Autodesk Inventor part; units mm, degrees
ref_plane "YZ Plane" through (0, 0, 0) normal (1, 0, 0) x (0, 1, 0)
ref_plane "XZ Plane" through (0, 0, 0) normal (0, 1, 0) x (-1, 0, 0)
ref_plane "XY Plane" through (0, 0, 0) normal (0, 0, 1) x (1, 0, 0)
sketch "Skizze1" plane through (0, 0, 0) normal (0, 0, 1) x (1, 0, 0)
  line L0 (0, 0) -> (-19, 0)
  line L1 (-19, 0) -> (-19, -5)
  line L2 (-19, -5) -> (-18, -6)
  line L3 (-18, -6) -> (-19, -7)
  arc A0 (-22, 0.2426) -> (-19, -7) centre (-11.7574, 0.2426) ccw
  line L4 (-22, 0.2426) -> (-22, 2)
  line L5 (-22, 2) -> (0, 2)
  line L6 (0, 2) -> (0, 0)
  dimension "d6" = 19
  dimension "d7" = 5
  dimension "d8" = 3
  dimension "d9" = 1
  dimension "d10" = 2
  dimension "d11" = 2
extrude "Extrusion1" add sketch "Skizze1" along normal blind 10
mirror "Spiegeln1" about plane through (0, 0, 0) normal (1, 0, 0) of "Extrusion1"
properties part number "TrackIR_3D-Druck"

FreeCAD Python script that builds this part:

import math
import FreeCAD as App
import Part
import Sketcher
from FreeCAD import Vector

doc = App.newDocument("Part")
params = doc.addObject("Spreadsheet::Sheet", "Params")
for row, (alias, value) in enumerate([
    ("sketch1_width", "19 mm"),
    ("sketch1_height", "2 mm"),
    ("sketch1_height2", "5 mm"),
    ("pad1_length", "10 mm"),
], start=1):
    params.set(f"A{row}", alias)
    params.set(f"B{row}", "=" + value)
    params.setAlias(f"B{row}", alias)

body = doc.addObject("PartDesign::Body", "Body")

# Sketch on XY plane
sketch1 = body.newObject("Sketcher::SketchObject", "Sketch")
sketch1.AttachmentSupport = (doc.getObject("XY_Plane"), [""])
sketch1.MapMode = "FlatFace"
sketch1.addGeometry(Part.LineSegment(Vector(-19, 0, 0), Vector(0, 0, 0)), False)
sketch1.addGeometry(Part.LineSegment(Vector(0, 0, 0), Vector(0, 2, 0)), False)
sketch1.addGeometry(Part.LineSegment(Vector(0, 2, 0), Vector(-22, 2, 0)), False)
sketch1.addGeometry(Part.LineSegment(Vector(-22, 2, 0), Vector(-22, 0.2426, 0)), False)
sketch1.addGeometry(Part.ArcOfCircle(Part.Circle(Vector(-11.7574, 0.2426, 0), Vector(0, 0, 1), 10.2426), math.radians(180), math.radians(225)), False)
sketch1.addGeometry(Part.LineSegment(Vector(-19, -7, 0), Vector(-18, -6, 0)), False)
sketch1.addGeometry(Part.LineSegment(Vector(-18, -6, 0), Vector(-19, -5, 0)), False)
sketch1.addGeometry(Part.LineSegment(Vector(-19, -5, 0), Vector(-19, 0, 0)), False)
sketch1.addConstraint(Sketcher.Constraint("Coincident", 0, 2, 1, 1))
sketch1.addConstraint(Sketcher.Constraint("Coincident", 1, 2, 2, 1))
sketch1.addConstraint(Sketcher.Constraint("Coincident", 2, 2, 3, 1))
sketch1.addConstraint(Sketcher.Constraint("Tangent", 3, 2, 4, 1))
sketch1.addConstraint(Sketcher.Constraint("Coincident", 4, 2, 5, 1))
sketch1.addConstraint(Sketcher.Constraint("Coincident", 5, 2, 6, 1))
sketch1.addConstraint(Sketcher.Constraint("Coincident", 6, 2, 7, 1))
sketch1.addConstraint(Sketcher.Constraint("Coincident", 7, 2, 0, 1))
sketch1.addConstraint(Sketcher.Constraint("Horizontal", 0))
sketch1.addConstraint(Sketcher.Constraint("Vertical", 1))
sketch1.addConstraint(Sketcher.Constraint("Horizontal", 2))
sketch1.addConstraint(Sketcher.Constraint("Vertical", 3))
sketch1.addConstraint(Sketcher.Constraint("Vertical", 7))
sketch1.addConstraint(Sketcher.Constraint("Coincident", 0, 2, -1, 1))
sketch1.addConstraint(Sketcher.Constraint("Perpendicular", 5, 6))
sketch1.addConstraint(Sketcher.Constraint("Vertical", 4, 2, 6, 2))
sketch1.addConstraint(Sketcher.Constraint("Equal", 5, 6))
sketch1.addConstraint(Sketcher.Constraint("DistanceX", 0, 1, 0, 2, 19.0))
sketch1.addConstraint(Sketcher.Constraint("DistanceY", 1, 1, 1, 2, 2.0))
sketch1.addConstraint(Sketcher.Constraint("DistanceY", 7, 1, 7, 2, 5.0))
sketch1.addConstraint(Sketcher.Constraint("DistanceX", 3, 2, 4, 2, 3.0))
sketch1.addConstraint(Sketcher.Constraint("DistanceX", 4, 2, 5, 2, 1.0))
sketch1.addConstraint(Sketcher.Constraint("Radius", 4, 10.2426))
sketch1.setExpression("Constraints[17]", "Params.sketch1_width")
sketch1.setExpression("Constraints[18]", "Params.sketch1_height")
sketch1.setExpression("Constraints[19]", "Params.sketch1_height2")
pad1 = body.newObject("PartDesign::Pad", "Pad")
pad1.Profile = sketch1
pad1.setExpression("Length", "Params.pad1_length")
doc.recompute()

mirrored = body.newObject("PartDesign::Mirrored", "Mirrored")
mirrored.Originals = [pad1]
mirrored.MirrorPlane = (doc.getObject("YZ_Plane"), [""])
body.Tip = mirrored

doc.recompute()
